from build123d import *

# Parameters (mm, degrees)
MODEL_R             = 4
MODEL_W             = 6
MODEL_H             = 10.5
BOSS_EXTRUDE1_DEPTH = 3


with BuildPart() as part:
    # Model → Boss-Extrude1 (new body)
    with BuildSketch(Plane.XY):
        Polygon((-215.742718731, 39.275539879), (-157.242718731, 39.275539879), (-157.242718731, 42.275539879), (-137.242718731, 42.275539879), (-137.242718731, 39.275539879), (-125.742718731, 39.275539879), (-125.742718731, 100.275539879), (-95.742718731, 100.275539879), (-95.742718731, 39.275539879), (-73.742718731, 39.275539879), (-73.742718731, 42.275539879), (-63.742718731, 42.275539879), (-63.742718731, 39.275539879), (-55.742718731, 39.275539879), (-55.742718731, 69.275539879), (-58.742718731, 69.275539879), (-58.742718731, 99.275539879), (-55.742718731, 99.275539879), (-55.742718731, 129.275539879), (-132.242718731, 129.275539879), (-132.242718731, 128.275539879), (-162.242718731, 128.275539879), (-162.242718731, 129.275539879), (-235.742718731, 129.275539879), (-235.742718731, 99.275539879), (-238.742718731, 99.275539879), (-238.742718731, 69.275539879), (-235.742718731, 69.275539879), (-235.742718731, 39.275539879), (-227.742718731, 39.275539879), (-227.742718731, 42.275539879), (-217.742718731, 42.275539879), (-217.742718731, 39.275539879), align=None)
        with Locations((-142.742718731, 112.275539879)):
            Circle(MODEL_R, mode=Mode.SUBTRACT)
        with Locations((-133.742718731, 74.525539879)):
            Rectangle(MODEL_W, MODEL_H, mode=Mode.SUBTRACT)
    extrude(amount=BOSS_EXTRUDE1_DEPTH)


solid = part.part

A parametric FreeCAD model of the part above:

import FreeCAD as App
import Part
import Sketcher

V = App.Vector
Q = App.Units.Quantity


def add_polygon(sketch, points):
    """Adds a closed chain of lines whose ends are joined by coincident constraints."""
    first, n = sketch.GeometryCount, len(points)
    for a, b in zip(points, points[1:] + points[:1]):
        sketch.addGeometry(Part.LineSegment(App.Vector(*a, 0), App.Vector(*b, 0)), False)
    for i in range(n):
        sketch.addConstraint(Sketcher.Constraint("Coincident", first + i, 2, first + (i + 1) % n, 1))

doc = App.newDocument("Part")
body = doc.addObject("PartDesign::Body", "Body")

sketch1 = body.newObject("Sketcher::SketchObject", "Sketch")
sketch1.AttachmentSupport = (doc.getObject("XY_Plane"), [""])
sketch1.MapMode = "FlatFace"
add_polygon(sketch1, [(-157.2, 39.3), (-157.2, 42.3), (-137.2, 42.3), (-137.2, 39.3), (-125.7, 39.3), (-125.7, 100.3), (-95.7, 100.3), (-95.7, 39.3), (-73.7, 39.3), (-73.7, 42.3), (-63.7, 42.3), (-63.7, 39.3), (-55.7, 39.3), (-55.7, 69.3), (-58.7, 69.3), (-58.7, 99.3), (-55.7, 99.3), (-55.7, 129.3), (-132.2, 129.3), (-132.2, 128.3), (-162.2, 128.3), (-162.2, 129.3), (-235.7, 129.3), (-235.7, 99.3), (-238.7, 99.3), (-238.7, 69.3), (-235.7, 69.3), (-235.7, 39.3), (-227.7, 39.3), (-227.7, 42.3), (-217.7, 42.3), (-217.7, 39.3)])
add_polygon(sketch1, [(-130.7, 69.3), (-136.7, 69.3), (-136.7, 79.8), (-130.7, 79.8)])
sketch1.addGeometry(Part.Circle(V(-142.7, 112.3, 0), V(0, 0, 1), 4), False)
sketch1.addConstraint([
    Sketcher.Constraint("Vertical", 0),
    Sketcher.Constraint("Horizontal", 1),
    Sketcher.Constraint("Vertical", 2),
    Sketcher.Constraint("Horizontal", 3),
    Sketcher.Constraint("Vertical", 4),
    Sketcher.Constraint("Horizontal", 5),
    Sketcher.Constraint("Vertical", 6),
    Sketcher.Constraint("Horizontal", 7),
    Sketcher.Constraint("Vertical", 8),
    Sketcher.Constraint("Horizontal", 9),
    Sketcher.Constraint("Vertical", 10),
    Sketcher.Constraint("Horizontal", 11),
    Sketcher.Constraint("Vertical", 12),
    Sketcher.Constraint("Horizontal", 13),
    Sketcher.Constraint("Vertical", 14),
    Sketcher.Constraint("Horizontal", 15),
    Sketcher.Constraint("Vertical", 16),
    Sketcher.Constraint("Horizontal", 17),
    Sketcher.Constraint("Vertical", 18),
    Sketcher.Constraint("Horizontal", 19),
    Sketcher.Constraint("Vertical", 20),
    Sketcher.Constraint("Horizontal", 21),
    Sketcher.Constraint("Vertical", 22),
    Sketcher.Constraint("Horizontal", 23),
    Sketcher.Constraint("Vertical", 24),
    Sketcher.Constraint("Horizontal", 25),
    Sketcher.Constraint("Vertical", 26),
    Sketcher.Constraint("Horizontal", 27),
    Sketcher.Constraint("Vertical", 28),
    Sketcher.Constraint("Horizontal", 29),
    Sketcher.Constraint("Vertical", 30),
    Sketcher.Constraint("Horizontal", 31),
    Sketcher.Constraint("Horizontal", 32),
    Sketcher.Constraint("Vertical", 33),
    Sketcher.Constraint("Horizontal", 34),
    Sketcher.Constraint("Vertical", 35),
    Sketcher.Constraint("Horizontal", 3, 2, 6, 2),
    Sketcher.Constraint("Horizontal", 1, 2, 8, 2),
    Sketcher.Constraint("Horizontal", 7, 2, 10, 2),
    Sketcher.Constraint("Horizontal", 17, 2, 20, 2),
    Sketcher.Constraint("Horizontal", 15, 2, 22, 2),
    Sketcher.Constraint("Horizontal", 13, 2, 24, 2),
    Sketcher.Constraint("Horizontal", 11, 2, 26, 2),
    Sketcher.Constraint("Horizontal", 9, 2, 28, 2),
    Sketcher.Constraint("Horizontal", 27, 2, 30, 2),
    Sketcher.Constraint("Horizontal", 25, 2, 32, 2),
    Sketcher.Constraint("Vertical", 12, 2, 15, 2),
    Sketcher.Constraint("Vertical", 22, 2, 25, 2),
    Sketcher.Constraint("Equal", 5, 19),
    Sketcher.Constraint("Equal", 15, 23),
    Sketcher.Constraint("Equal", 11, 27),
    Sketcher.Constraint("Equal", 9, 29),
    Sketcher.Constraint("Equal", 25, 0),
    Sketcher.Constraint("Equal", 19, 12),
    Sketcher.Constraint("Equal", 12, 14),
    Sketcher.Constraint("Equal", 14, 16),
    Sketcher.Constraint("Diameter", 36, Q("8 mm")),
    Sketcher.Constraint("DistanceX", 1, 1, 1, 2, Q("20 mm")),
    Sketcher.Constraint("DistanceX", 5, 1, 5, 2, Q("30 mm")),
    Sketcher.Constraint("DistanceX", 7, 1, 7, 2, Q("22 mm")),
    Sketcher.Constraint("DistanceX", 9, 1, 9, 2, Q("10 mm")),
    Sketcher.Constraint("DistanceX", 11, 1, 11, 2, Q("8 mm")),
    Sketcher.Constraint("DistanceX", 13, 2, 13, 1, Q("3 mm")),
    Sketcher.Constraint("DistanceX", 32, 2, 32, 1, Q("6 mm")),
    Sketcher.Constraint("DistanceY", 4, 1, 4, 2, Q("61 mm")),
    Sketcher.Constraint("DistanceY", 18, 2, 18, 1, Q("1 mm")),
    Sketcher.Constraint("DistanceX", 3, 1, 3, 2, Q("11.5 mm")),
    Sketcher.Constraint("DistanceX", 17, 2, 17, 1, Q("76.5 mm")),
    Sketcher.Constraint("DistanceX", 21, 2, 21, 1, Q("73.5 mm")),
    Sketcher.Constraint("DistanceY", 33, 1, 33, 2, Q("10.5 mm")),
    Sketcher.Constraint("DistanceY", 0, 2, 36, 3, Q("70 mm")),
    Sketcher.Constraint("DistanceX", 36, 3, 3, 2, Q("17 mm")),
    Sketcher.Constraint("DistanceX", 32, 2, 3, 2, Q("11 mm")),
    Sketcher.Constraint("DistanceX", 36, 3, -1, 1, Q("142.742719 mm")),
    Sketcher.Constraint("DistanceY", -1, 1, 36, 3, Q("112.27554 mm")),
])
pad1 = body.newObject("PartDesign::Pad", "Pad")
pad1.Profile = sketch1
pad1.Length = 3

doc.recompute()
